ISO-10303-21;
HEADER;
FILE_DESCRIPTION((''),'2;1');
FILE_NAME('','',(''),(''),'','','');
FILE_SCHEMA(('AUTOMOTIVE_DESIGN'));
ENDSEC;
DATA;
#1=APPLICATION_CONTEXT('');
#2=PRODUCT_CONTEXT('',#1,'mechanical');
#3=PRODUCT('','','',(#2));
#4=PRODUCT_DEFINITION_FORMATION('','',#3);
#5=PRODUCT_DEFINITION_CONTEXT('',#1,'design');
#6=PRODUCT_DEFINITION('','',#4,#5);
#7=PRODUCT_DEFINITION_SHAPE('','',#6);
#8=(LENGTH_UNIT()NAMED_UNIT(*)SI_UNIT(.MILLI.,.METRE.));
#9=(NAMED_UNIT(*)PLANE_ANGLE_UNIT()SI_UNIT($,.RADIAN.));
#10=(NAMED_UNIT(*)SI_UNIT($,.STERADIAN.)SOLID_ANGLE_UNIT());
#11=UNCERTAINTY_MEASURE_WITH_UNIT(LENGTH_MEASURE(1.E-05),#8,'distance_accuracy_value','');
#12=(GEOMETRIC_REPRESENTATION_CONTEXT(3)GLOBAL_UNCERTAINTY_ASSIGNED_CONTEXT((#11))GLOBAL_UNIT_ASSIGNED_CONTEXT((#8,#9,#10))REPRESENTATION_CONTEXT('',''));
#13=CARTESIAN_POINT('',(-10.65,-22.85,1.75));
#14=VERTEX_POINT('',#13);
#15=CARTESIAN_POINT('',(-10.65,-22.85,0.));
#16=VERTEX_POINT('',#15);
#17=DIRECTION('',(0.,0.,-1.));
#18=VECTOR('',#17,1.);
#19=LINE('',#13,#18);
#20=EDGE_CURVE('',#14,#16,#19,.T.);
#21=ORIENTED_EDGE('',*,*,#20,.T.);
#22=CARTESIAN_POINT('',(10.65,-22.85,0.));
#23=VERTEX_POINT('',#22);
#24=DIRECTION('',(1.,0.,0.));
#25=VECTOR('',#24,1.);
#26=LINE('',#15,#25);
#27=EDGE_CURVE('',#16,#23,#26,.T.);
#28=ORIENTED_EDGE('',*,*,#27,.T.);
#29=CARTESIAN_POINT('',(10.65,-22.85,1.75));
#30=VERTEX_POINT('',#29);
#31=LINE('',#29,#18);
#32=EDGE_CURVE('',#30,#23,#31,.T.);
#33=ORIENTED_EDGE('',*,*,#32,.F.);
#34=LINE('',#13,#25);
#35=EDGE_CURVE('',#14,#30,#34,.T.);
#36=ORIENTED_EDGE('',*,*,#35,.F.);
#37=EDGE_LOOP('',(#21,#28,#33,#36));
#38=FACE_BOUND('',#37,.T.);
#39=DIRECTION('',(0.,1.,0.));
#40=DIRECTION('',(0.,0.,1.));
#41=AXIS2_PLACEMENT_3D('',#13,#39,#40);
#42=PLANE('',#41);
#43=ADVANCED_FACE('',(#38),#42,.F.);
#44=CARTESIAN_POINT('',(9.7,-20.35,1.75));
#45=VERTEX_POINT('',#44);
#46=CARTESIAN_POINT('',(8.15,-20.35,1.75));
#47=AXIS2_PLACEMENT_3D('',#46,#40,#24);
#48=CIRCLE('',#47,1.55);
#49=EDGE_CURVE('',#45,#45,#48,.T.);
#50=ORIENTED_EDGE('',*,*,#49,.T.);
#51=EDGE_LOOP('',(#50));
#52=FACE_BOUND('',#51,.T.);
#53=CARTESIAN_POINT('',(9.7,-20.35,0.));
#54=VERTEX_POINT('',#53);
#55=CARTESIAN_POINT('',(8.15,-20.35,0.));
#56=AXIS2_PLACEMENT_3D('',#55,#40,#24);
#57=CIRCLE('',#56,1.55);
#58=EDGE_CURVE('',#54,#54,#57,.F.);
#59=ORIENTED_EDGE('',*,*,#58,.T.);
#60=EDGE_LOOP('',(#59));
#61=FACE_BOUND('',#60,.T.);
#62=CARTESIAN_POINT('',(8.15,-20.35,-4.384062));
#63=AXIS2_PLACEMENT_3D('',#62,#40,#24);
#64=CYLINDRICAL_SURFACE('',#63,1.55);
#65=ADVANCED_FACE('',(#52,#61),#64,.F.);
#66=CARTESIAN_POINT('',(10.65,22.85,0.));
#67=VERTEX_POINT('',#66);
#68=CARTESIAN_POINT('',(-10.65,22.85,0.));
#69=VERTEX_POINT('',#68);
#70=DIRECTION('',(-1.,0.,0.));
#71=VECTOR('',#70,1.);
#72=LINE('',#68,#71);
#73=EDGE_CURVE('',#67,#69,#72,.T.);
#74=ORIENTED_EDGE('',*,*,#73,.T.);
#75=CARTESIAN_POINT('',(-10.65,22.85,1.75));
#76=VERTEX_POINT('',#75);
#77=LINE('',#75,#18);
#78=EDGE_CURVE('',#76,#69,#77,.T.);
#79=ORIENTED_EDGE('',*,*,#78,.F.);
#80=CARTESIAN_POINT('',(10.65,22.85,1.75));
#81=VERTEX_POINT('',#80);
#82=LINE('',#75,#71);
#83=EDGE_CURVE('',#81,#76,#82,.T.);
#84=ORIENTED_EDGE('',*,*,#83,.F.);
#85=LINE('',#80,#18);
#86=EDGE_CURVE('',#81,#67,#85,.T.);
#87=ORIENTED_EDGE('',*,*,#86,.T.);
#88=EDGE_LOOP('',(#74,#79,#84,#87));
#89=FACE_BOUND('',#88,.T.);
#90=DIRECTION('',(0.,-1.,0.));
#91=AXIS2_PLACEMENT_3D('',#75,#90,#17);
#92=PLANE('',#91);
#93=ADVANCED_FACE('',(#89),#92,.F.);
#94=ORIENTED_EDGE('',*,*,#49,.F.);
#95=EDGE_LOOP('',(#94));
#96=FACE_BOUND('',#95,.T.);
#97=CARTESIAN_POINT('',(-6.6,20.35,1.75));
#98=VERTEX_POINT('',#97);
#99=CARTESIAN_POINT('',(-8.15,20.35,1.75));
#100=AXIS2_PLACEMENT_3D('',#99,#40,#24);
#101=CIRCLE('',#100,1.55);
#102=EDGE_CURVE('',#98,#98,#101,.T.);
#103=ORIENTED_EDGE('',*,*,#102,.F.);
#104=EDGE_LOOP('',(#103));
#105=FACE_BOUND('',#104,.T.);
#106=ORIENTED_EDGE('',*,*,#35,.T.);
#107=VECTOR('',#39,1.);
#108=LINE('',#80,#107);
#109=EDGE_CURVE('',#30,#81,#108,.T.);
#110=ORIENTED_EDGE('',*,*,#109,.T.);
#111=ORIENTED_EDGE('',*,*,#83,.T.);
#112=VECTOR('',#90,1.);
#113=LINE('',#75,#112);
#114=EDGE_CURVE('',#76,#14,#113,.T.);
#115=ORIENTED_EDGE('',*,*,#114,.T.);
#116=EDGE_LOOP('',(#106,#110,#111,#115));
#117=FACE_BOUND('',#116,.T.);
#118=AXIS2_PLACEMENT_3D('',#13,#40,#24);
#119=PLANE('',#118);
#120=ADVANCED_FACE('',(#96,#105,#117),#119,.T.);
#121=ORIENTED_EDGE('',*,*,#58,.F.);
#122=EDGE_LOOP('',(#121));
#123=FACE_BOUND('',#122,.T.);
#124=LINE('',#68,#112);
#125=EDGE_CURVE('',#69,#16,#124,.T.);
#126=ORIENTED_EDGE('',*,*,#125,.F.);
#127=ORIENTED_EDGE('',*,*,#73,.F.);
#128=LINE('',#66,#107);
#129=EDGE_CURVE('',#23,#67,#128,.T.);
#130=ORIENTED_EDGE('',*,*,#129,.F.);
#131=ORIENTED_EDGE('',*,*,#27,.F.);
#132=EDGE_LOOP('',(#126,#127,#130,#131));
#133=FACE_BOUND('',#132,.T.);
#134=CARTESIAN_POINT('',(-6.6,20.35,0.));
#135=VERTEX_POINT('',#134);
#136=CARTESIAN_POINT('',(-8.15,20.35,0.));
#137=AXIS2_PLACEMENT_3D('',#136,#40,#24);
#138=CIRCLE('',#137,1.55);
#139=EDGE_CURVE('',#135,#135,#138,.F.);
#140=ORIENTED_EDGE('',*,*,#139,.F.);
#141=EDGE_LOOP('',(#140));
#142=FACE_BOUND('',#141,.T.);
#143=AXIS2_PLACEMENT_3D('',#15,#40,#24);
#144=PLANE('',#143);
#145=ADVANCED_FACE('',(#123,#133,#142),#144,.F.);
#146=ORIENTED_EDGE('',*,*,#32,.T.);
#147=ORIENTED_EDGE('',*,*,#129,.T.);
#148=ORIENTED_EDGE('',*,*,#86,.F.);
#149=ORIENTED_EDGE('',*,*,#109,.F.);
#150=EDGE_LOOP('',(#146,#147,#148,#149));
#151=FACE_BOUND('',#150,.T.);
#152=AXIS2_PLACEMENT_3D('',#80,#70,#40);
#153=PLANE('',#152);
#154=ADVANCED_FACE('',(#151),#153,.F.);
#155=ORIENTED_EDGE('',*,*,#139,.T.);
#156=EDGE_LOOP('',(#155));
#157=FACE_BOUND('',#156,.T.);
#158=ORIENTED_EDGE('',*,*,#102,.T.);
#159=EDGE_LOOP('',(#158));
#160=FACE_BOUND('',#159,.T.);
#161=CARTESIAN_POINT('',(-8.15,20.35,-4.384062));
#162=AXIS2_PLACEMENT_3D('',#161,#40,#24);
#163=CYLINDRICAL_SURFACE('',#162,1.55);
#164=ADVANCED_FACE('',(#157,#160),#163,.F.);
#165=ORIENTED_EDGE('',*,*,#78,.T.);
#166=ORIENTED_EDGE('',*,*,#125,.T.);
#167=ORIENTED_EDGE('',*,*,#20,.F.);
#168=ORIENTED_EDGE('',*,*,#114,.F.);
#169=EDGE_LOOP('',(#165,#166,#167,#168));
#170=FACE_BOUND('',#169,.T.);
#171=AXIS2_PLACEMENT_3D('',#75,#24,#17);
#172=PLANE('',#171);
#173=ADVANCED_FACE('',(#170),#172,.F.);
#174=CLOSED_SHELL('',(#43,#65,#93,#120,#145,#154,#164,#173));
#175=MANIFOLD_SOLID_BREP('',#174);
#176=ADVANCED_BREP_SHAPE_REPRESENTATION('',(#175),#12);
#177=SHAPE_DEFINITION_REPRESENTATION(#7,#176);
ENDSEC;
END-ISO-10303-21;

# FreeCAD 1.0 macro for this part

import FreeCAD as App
import Part
import Sketcher

V = App.Vector
Q = App.Units.Quantity

doc = App.newDocument("Part")
body = doc.addObject("PartDesign::Body", "Body")

sketch1 = doc.addObject("Sketcher::SketchObject", "Sketch")
body.addObject(sketch1)
sketch1.AttachmentSupport = (doc.XY_Plane, [""])
sketch1.MapMode = "FlatFace"
sketch1.addGeometry([
    Part.LineSegment(V(-11, 23, 0), V(-11, -23, 0)),
    Part.LineSegment(V(-11, -23, 0), V(11, -23, 0)),
    Part.LineSegment(V(11, -23, 0), V(11, 23, 0)),
    Part.LineSegment(V(11, 23, 0), V(-11, 23, 0)),
], False)
sketch1.addConstraint([
    Sketcher.Constraint("Coincident", 0, 2, 1, 1),
    Sketcher.Constraint("Coincident", 1, 2, 2, 1),
    Sketcher.Constraint("Coincident", 2, 2, 3, 1),
    Sketcher.Constraint("Coincident", 3, 2, 0, 1),
    Sketcher.Constraint("Vertical", 0),
    Sketcher.Constraint("Horizontal", 1),
    Sketcher.Constraint("Vertical", 2),
    Sketcher.Constraint("Horizontal", 3),
    Sketcher.Constraint("Symmetric", 0, 2, 2, 2, -1, 1),
    Sketcher.Constraint("DistanceX", 1, 1, 1, 2, Q("21.3 mm")),
    Sketcher.Constraint("DistanceY", 0, 2, 0, 1, Q("45.7 mm")),
])
pad1 = doc.addObject("PartDesign::Pad", "Pad")
body.addObject(pad1)
pad1.Profile = sketch1
pad1.Length = 1.75

sketch2 = doc.addObject("Sketcher::SketchObject", "Sketch001")
body.addObject(sketch2)
sketch2.AttachmentSupport = (doc.XY_Plane, [""])
sketch2.MapMode = "FlatFace"
sketch2.AttachmentOffset = App.Placement(V(0, 0, 1.75), App.Rotation())
sketch2.addGeometry([
    Part.Circle(V(8.2, -20.4, 0), V(0, 0, 1), 1.6),
    Part.Circle(V(-8.2, 20.4, 0), V(0, 0, 1), 1.6),
], False)
sketch2.addConstraint([
    Sketcher.Constraint("Equal", 0, 1),
    Sketcher.Constraint("Symmetric", 0, 3, 1, 3, -1, 1),
    Sketcher.Constraint("Diameter", 0, Q("3.1 mm")),
    Sketcher.Constraint("DistanceX", 1, 3, 0, 3, Q("16.3 mm")),
    Sketcher.Constraint("DistanceY", 0, 3, 1, 3, Q("40.7 mm")),
])
pocket1 = doc.addObject("PartDesign::Pocket", "Pocket")
body.addObject(pocket1)
pocket1.Profile = sketch2
pocket1.Length = 1.75

doc.recompute()
